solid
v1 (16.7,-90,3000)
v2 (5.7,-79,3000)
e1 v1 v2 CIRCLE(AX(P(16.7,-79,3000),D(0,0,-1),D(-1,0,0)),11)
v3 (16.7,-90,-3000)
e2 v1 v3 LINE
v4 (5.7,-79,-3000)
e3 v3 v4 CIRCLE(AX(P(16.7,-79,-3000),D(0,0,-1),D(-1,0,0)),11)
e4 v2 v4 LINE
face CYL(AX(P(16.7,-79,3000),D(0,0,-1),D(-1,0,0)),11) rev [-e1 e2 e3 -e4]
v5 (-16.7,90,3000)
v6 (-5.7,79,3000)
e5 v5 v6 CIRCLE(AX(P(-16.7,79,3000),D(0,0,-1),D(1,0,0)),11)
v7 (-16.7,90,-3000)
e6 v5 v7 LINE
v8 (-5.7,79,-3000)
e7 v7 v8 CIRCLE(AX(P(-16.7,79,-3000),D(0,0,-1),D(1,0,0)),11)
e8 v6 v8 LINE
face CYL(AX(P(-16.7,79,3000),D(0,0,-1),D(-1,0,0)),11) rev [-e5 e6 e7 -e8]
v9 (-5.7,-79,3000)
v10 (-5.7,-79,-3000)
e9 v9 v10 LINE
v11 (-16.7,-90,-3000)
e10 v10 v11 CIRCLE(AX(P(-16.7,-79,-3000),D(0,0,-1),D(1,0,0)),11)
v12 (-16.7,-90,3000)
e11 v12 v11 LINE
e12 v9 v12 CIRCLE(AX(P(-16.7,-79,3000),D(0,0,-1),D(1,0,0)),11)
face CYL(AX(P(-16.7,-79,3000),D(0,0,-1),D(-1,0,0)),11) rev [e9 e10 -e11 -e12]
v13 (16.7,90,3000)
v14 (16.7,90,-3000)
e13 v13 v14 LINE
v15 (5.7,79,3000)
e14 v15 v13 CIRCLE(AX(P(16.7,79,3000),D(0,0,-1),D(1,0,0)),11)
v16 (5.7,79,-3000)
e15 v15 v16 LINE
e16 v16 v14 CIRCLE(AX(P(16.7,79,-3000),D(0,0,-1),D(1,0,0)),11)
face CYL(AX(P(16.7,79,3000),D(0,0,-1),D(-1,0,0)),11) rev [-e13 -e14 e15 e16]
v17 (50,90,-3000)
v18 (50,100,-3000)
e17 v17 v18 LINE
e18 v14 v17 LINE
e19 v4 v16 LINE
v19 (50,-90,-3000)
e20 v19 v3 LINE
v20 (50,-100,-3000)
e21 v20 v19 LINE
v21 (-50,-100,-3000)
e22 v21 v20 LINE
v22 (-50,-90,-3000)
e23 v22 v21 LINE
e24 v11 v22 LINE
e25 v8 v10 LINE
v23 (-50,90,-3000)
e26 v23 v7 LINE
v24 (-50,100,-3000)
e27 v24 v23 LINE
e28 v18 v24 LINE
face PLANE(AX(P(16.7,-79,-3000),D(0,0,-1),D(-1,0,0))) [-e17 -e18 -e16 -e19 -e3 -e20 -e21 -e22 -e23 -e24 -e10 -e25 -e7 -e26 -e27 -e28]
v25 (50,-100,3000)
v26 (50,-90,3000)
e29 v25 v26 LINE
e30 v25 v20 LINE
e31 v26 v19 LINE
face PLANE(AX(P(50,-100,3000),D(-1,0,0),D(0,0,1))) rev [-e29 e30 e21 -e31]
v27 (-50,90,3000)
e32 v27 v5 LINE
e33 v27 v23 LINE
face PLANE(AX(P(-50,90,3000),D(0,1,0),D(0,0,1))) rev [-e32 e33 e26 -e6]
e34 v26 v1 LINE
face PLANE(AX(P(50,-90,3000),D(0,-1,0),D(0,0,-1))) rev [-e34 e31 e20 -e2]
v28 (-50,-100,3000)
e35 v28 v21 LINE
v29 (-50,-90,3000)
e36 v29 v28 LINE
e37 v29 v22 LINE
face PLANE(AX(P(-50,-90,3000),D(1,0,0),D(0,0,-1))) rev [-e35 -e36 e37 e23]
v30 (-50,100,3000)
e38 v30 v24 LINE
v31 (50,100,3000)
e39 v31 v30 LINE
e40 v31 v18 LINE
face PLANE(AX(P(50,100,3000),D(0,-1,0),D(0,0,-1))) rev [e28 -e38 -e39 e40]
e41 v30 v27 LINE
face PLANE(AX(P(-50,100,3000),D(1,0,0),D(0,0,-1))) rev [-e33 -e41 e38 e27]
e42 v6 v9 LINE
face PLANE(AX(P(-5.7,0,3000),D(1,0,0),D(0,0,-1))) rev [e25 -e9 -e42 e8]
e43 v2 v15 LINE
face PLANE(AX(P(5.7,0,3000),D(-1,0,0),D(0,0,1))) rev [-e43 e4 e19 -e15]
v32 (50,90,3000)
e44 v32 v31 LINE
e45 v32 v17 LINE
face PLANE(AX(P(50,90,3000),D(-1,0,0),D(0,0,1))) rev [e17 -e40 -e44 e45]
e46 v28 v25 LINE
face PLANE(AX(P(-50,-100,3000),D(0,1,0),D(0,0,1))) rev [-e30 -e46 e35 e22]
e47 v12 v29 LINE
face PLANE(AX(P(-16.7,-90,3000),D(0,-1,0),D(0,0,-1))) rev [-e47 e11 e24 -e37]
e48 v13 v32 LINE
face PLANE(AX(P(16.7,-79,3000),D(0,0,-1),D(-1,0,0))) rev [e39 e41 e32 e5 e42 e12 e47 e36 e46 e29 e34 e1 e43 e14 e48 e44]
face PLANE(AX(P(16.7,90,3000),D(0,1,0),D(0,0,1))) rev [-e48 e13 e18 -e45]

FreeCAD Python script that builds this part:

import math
import FreeCAD as App
import Part
import Sketcher

doc = App.newDocument("Part")
body = doc.addObject("PartDesign::Body", "Body")

# Sketch on XY plane
sketch1 = doc.addObject("Sketcher::SketchObject", "Sketch")
body.addObject(sketch1)
sketch1.AttachmentSupport = (doc.XY_Plane, [""])
sketch1.MapMode = "FlatFace"
sketch1.addGeometry(Part.ArcOfCircle(Part.Circle(App.Vector(17, 79, 0), App.Vector(0, 0, 1), 11), math.radians(90), math.radians(180)), False)
sketch1.addGeometry(Part.LineSegment(App.Vector(17, 90, 0), App.Vector(50, 90, 0)), False)
sketch1.addGeometry(Part.LineSegment(App.Vector(50, 90, 0), App.Vector(50, 100, 0)), False)
sketch1.addGeometry(Part.LineSegment(App.Vector(50, 100, 0), App.Vector(-50, 100, 0)), False)
sketch1.addGeometry(Part.LineSegment(App.Vector(-50, 100, 0), App.Vector(-50, 90, 0)), False)
sketch1.addGeometry(Part.LineSegment(App.Vector(-50, 90, 0), App.Vector(-17, 90, 0)), False)
sketch1.addGeometry(Part.ArcOfCircle(Part.Circle(App.Vector(-17, 79, 0), App.Vector(0, 0, 1), 11), math.radians(0), math.radians(90)), False)
sketch1.addGeometry(Part.LineSegment(App.Vector(-6, 79, 0), App.Vector(-6, -79, 0)), False)
sketch1.addGeometry(Part.ArcOfCircle(Part.Circle(App.Vector(-17, -79, 0), App.Vector(0, 0, 1), 11), math.radians(-90), math.radians(0)), False)
sketch1.addGeometry(Part.LineSegment(App.Vector(-17, -90, 0), App.Vector(-50, -90, 0)), False)
sketch1.addGeometry(Part.LineSegment(App.Vector(-50, -90, 0), App.Vector(-50, -100, 0)), False)
sketch1.addGeometry(Part.LineSegment(App.Vector(-50, -100, 0), App.Vector(50, -100, 0)), False)
sketch1.addGeometry(Part.LineSegment(App.Vector(50, -100, 0), App.Vector(50, -90, 0)), False)
sketch1.addGeometry(Part.LineSegment(App.Vector(50, -90, 0), App.Vector(17, -90, 0)), False)
sketch1.addGeometry(Part.ArcOfCircle(Part.Circle(App.Vector(17, -79, 0), App.Vector(0, 0, 1), 11), math.radians(180), math.radians(270)), False)
sketch1.addGeometry(Part.LineSegment(App.Vector(6, -79, 0), App.Vector(6, 79, 0)), False)
sketch1.addConstraint(Sketcher.Constraint("Tangent", 0, 1, 1, 1))
sketch1.addConstraint(Sketcher.Constraint("Coincident", 1, 2, 2, 1))
sketch1.addConstraint(Sketcher.Constraint("Coincident", 2, 2, 3, 1))
sketch1.addConstraint(Sketcher.Constraint("Coincident", 3, 2, 4, 1))
sketch1.addConstraint(Sketcher.Constraint("Coincident", 4, 2, 5, 1))
sketch1.addConstraint(Sketcher.Constraint("Tangent", 5, 2, 6, 2))
sketch1.addConstraint(Sketcher.Constraint("Tangent", 6, 1, 7, 1))
sketch1.addConstraint(Sketcher.Constraint("Tangent", 7, 2, 8, 2))
sketch1.addConstraint(Sketcher.Constraint("Tangent", 8, 1, 9, 1))
sketch1.addConstraint(Sketcher.Constraint("Coincident", 9, 2, 10, 1))
sketch1.addConstraint(Sketcher.Constraint("Coincident", 10, 2, 11, 1))
sketch1.addConstraint(Sketcher.Constraint("Coincident", 11, 2, 12, 1))
sketch1.addConstraint(Sketcher.Constraint("Coincident", 12, 2, 13, 1))
sketch1.addConstraint(Sketcher.Constraint("Tangent", 13, 2, 14, 2))
sketch1.addConstraint(Sketcher.Constraint("Tangent", 14, 1, 15, 1))
sketch1.addConstraint(Sketcher.Constraint("Tangent", 15, 2, 0, 2))
sketch1.addConstraint(Sketcher.Constraint("Horizontal", 1))
sketch1.addConstraint(Sketcher.Constraint("Vertical", 2))
sketch1.addConstraint(Sketcher.Constraint("Horizontal", 3))
sketch1.addConstraint(Sketcher.Constraint("Vertical", 4))
sketch1.addConstraint(Sketcher.Constraint("Horizontal", 5))
sketch1.addConstraint(Sketcher.Constraint("Vertical", 7))
sketch1.addConstraint(Sketcher.Constraint("Horizontal", 9))
sketch1.addConstraint(Sketcher.Constraint("Vertical", 10))
sketch1.addConstraint(Sketcher.Constraint("Horizontal", 11))
sketch1.addConstraint(Sketcher.Constraint("Vertical", 12))
sketch1.addConstraint(Sketcher.Constraint("Horizontal", 13))
sketch1.addConstraint(Sketcher.Constraint("Vertical", 15))
sketch1.addConstraint(Sketcher.Constraint("Equal", 0, 6))
sketch1.addConstraint(Sketcher.Constraint("Equal", 6, 8))
sketch1.addConstraint(Sketcher.Constraint("Equal", 8, 14))
sketch1.addConstraint(Sketcher.Constraint("Symmetric", 0, 3, 8, 3, -1, 1))
sketch1.addConstraint(Sketcher.Constraint("Symmetric", 2, 2, 10, 2, -1, 1))
sketch1.addConstraint(Sketcher.Constraint("Symmetric", 4, 2, 12, 2, -1, 1))
sketch1.addConstraint(Sketcher.Constraint("Symmetric", 1, 2, 4, 2, -2))
sketch1.addConstraint(Sketcher.Constraint("Radius", 0, 11.0))
sketch1.addConstraint(Sketcher.Constraint("DistanceX", 3, 2, 3, 1, 100.0))
sketch1.addConstraint(Sketcher.Constraint("DistanceY", 2, 1, 2, 2, 10.0))
sketch1.addConstraint(Sketcher.Constraint("DistanceY", 7, 2, 7, 1, 158.0))
sketch1.addConstraint(Sketcher.Constraint("DistanceX", 1, 1, 1, 2, 33.3))
pad1 = doc.addObject("PartDesign::Pad", "Pad")
body.addObject(pad1)
pad1.Profile = sketch1
pad1.Length = 6000
pad1.Midplane = True

doc.recompute()
